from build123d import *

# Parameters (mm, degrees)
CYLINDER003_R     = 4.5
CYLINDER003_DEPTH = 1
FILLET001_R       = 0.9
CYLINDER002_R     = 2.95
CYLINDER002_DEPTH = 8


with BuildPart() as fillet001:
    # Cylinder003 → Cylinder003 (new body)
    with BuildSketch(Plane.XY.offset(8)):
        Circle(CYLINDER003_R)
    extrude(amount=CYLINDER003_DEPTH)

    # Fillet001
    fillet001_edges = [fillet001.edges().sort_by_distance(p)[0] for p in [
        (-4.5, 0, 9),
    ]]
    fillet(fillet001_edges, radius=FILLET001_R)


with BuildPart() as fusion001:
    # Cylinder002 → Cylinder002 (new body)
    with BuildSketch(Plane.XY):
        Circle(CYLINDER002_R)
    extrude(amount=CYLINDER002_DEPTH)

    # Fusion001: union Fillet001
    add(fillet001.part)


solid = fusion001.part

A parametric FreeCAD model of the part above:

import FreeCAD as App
import Part
import Sketcher
from FreeCAD import Vector


def edges_at(feature, points):
    """Names of the edges that pass closest to the given points."""
    edges = feature.Shape.Edges
    near = lambda p: min(range(len(edges)), key=lambda i: edges[i].distToShape(Part.Vertex(*p))[0])
    return sorted({f"Edge{near(p) + 1}" for p in points})

doc = App.newDocument("Part")
body = doc.addObject("PartDesign::Body", "Body")

sketch1 = doc.addObject("Sketcher::SketchObject", "Sketch")
body.addObject(sketch1)
sketch1.AttachmentSupport = (doc.XY_Plane, [""])
sketch1.MapMode = "FlatFace"
sketch1.AttachmentOffset = App.Placement(Vector(0, 0, 8), App.Rotation())
sketch1.addGeometry(Part.Circle(Vector(0, 0, 0), Vector(0, 0, 1), 4.5), False)
sketch1.addConstraint(Sketcher.Constraint("Coincident", 0, 3, -1, 1))
sketch1.addConstraint(Sketcher.Constraint("Diameter", 0, 9.0))
pad1 = doc.addObject("PartDesign::Pad", "Pad")
body.addObject(pad1)
pad1.Profile = sketch1
pad1.Length = 1
doc.recompute()

fillet = doc.addObject("PartDesign::Fillet", "Fillet")
body.addObject(fillet)
fillet.Base = (pad1, edges_at(pad1, [(-4.5, 0, 9)]))
fillet.Radius = 0.9
body2 = doc.addObject("PartDesign::Body", "Body001")

sketch2 = doc.addObject("Sketcher::SketchObject", "Sketch001")
body2.addObject(sketch2)
sketch2.AttachmentSupport = (doc.getObject("XY_Plane001"), [""])
sketch2.MapMode = "FlatFace"
sketch2.addGeometry(Part.Circle(Vector(0, 0, 0), Vector(0, 0, 1), 3), False)
sketch2.addConstraint(Sketcher.Constraint("Coincident", 0, 3, -1, 1))
sketch2.addConstraint(Sketcher.Constraint("Diameter", 0, 5.9))
pad2 = doc.addObject("PartDesign::Pad", "Pad001")
body2.addObject(pad2)
pad2.Profile = sketch2
pad2.Length = 8
doc.recompute()

boolean = doc.addObject("PartDesign::Boolean", "Boolean")
body2.addObject(boolean)
boolean.Type = "Fuse"
boolean.addObjects([body])

doc.recompute()
